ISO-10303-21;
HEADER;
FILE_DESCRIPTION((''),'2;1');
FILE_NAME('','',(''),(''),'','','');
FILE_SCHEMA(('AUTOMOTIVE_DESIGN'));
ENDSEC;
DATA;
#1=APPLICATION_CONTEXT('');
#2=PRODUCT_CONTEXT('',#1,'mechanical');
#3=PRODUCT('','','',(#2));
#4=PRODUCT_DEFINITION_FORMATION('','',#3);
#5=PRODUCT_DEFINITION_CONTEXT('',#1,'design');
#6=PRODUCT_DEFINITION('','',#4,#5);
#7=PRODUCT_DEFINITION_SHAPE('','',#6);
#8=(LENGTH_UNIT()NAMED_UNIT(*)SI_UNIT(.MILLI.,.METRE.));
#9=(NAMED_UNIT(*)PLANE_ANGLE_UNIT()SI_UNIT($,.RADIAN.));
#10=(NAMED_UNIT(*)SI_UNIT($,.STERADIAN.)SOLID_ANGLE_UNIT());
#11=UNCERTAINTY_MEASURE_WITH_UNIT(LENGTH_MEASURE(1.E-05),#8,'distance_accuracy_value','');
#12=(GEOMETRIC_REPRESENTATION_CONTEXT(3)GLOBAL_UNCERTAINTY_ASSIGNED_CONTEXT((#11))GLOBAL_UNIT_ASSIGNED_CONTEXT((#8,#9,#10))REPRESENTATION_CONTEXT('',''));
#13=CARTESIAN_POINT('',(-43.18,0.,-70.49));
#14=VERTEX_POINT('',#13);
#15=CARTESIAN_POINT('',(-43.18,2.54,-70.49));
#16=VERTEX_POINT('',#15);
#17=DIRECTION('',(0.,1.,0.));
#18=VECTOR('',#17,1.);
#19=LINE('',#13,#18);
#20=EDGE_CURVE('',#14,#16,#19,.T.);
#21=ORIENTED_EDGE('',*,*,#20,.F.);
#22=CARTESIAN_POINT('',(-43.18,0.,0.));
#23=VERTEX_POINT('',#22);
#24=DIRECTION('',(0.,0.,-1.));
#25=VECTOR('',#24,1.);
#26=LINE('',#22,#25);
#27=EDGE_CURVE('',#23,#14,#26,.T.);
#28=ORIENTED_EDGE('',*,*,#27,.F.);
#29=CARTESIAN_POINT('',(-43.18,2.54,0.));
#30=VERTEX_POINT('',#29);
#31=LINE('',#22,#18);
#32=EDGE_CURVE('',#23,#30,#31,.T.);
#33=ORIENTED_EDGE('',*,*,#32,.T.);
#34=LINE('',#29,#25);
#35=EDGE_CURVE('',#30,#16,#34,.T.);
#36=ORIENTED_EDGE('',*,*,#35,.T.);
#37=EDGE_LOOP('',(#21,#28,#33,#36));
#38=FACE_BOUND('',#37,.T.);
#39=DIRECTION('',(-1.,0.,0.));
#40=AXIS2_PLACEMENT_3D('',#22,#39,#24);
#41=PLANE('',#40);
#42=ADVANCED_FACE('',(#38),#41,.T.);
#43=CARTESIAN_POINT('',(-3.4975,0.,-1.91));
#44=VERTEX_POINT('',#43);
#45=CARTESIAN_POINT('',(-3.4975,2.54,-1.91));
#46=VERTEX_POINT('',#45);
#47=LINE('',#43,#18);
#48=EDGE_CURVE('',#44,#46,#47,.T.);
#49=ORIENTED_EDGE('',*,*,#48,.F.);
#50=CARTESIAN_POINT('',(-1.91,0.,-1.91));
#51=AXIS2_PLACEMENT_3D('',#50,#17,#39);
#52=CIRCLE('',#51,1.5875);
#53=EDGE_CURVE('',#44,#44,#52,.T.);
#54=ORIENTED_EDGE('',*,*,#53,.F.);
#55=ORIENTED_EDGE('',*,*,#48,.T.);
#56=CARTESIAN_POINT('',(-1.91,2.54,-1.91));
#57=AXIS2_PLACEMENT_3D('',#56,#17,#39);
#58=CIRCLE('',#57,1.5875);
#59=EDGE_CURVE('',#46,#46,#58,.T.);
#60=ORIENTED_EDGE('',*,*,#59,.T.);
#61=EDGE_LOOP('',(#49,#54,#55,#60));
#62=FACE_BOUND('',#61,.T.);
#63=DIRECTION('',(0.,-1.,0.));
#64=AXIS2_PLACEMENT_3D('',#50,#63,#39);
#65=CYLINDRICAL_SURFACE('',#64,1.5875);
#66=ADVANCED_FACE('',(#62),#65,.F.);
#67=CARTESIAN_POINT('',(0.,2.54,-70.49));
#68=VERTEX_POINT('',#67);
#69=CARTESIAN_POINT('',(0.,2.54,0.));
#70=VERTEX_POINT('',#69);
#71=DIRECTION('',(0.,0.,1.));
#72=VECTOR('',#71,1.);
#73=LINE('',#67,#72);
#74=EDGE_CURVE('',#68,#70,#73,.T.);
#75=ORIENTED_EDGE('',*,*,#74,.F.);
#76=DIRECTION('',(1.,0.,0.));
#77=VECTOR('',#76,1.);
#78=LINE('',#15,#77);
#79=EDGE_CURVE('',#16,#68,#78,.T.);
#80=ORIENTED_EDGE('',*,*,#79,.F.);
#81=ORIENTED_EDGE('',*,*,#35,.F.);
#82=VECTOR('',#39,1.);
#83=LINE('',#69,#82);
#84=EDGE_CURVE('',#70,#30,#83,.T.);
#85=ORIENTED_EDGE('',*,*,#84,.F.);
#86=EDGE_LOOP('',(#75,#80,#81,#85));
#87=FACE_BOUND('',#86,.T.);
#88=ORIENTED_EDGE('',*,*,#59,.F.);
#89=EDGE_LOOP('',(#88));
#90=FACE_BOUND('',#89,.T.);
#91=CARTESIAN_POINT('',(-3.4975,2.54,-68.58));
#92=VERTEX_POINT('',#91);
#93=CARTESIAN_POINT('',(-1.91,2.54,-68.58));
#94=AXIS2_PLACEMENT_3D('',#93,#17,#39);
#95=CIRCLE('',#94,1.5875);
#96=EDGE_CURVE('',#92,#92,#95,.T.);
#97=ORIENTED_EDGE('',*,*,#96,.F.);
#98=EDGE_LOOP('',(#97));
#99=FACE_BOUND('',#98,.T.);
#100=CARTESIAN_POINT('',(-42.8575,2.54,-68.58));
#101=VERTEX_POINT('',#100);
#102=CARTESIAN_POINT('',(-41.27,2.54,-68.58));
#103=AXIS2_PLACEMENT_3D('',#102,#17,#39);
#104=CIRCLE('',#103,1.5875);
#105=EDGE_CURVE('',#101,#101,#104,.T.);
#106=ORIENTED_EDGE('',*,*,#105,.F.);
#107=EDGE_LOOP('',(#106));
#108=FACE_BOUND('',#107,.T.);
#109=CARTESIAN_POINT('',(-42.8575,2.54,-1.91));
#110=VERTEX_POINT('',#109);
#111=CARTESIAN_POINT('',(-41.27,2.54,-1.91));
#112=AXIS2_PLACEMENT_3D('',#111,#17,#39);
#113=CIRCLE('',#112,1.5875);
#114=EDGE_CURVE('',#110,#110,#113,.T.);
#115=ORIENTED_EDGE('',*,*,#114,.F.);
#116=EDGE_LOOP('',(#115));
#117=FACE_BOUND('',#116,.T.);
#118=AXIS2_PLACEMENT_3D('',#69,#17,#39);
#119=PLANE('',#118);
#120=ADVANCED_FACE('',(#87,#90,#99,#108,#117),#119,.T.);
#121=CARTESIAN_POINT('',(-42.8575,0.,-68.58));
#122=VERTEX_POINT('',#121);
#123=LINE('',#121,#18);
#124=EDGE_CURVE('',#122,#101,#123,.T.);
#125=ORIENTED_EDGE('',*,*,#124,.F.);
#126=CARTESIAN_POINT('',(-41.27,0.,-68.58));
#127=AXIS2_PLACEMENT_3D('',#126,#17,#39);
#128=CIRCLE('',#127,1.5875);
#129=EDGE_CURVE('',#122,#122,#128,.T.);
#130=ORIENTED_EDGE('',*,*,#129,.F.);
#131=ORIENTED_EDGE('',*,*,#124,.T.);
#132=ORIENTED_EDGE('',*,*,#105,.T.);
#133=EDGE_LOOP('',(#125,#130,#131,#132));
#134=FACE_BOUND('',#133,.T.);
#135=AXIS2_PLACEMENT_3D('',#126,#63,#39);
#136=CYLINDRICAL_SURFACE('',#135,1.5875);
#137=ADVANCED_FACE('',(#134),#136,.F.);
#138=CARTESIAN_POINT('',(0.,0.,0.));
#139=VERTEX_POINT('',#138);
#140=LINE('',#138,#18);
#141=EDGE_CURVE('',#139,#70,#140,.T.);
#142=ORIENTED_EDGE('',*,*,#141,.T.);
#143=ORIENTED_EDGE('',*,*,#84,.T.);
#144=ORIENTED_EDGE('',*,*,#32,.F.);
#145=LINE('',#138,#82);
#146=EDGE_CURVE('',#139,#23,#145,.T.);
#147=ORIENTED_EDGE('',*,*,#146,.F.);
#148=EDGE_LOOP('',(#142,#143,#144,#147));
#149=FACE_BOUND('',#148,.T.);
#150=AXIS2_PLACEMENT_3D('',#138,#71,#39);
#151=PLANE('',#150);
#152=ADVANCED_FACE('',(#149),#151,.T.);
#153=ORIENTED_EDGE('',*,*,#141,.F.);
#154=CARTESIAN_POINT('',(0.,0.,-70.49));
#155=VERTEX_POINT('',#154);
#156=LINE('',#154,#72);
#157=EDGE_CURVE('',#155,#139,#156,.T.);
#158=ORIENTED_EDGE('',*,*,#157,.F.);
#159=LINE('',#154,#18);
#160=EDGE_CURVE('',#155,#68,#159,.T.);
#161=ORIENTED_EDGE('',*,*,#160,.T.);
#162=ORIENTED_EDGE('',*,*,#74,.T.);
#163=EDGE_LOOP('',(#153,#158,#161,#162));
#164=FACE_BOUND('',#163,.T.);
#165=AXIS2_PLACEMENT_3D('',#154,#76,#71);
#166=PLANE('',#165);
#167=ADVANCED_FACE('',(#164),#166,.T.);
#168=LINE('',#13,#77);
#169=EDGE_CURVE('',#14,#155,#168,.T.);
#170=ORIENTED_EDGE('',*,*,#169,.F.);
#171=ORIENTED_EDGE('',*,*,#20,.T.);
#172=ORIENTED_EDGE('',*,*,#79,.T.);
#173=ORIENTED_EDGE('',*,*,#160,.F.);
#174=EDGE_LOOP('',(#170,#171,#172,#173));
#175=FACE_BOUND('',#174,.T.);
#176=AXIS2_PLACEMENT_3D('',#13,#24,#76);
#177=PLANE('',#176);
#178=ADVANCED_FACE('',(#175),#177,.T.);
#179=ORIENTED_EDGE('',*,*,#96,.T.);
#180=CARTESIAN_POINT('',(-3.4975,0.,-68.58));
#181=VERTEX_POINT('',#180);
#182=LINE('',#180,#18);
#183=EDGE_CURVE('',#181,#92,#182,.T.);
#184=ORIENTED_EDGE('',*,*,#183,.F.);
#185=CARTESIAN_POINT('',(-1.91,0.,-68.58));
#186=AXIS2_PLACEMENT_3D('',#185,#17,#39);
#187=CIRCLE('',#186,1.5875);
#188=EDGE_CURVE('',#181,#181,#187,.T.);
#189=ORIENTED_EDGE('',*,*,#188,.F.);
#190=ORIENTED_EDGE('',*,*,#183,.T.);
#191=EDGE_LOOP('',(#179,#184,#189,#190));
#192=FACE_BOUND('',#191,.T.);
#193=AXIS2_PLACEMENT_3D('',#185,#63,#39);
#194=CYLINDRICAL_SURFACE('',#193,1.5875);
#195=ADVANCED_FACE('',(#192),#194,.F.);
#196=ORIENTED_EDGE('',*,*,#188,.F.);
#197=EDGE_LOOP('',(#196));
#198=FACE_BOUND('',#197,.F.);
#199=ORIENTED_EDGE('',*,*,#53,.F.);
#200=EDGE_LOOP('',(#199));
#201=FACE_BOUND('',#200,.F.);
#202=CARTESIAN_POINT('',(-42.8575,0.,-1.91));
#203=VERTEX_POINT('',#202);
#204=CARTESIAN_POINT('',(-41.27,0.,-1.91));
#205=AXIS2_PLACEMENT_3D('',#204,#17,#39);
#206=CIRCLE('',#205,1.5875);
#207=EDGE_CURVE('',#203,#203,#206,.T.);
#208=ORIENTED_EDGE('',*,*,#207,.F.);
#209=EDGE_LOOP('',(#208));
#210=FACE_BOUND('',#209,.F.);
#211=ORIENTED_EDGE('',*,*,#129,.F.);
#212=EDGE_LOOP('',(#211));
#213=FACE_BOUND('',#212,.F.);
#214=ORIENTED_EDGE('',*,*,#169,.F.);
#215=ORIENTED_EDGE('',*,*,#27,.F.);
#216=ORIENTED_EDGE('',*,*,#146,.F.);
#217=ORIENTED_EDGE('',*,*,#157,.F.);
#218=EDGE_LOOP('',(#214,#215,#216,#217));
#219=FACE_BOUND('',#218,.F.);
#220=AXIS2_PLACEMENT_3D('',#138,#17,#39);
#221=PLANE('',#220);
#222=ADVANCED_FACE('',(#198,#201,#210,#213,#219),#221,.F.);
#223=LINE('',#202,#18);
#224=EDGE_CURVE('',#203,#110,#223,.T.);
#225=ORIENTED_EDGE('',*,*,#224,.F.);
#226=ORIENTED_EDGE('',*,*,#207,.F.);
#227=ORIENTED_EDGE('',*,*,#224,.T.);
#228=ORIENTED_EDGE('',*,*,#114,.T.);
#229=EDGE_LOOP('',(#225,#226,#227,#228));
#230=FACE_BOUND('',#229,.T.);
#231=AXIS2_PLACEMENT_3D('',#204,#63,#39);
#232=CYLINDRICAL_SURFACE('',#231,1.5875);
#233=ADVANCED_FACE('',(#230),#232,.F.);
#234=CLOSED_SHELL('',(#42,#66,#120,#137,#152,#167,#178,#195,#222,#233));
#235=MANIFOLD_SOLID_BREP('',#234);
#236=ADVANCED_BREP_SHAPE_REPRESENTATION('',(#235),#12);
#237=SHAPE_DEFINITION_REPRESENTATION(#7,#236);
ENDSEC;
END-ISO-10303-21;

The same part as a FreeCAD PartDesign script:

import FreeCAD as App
import Part
import Sketcher

V = App.Vector
Q = App.Units.Quantity


def add_polygon(sketch, points):
    """Adds a closed chain of lines whose ends are joined by coincident constraints."""
    first, n = sketch.GeometryCount, len(points)
    for a, b in zip(points, points[1:] + points[:1]):
        sketch.addGeometry(Part.LineSegment(App.Vector(*a, 0), App.Vector(*b, 0)), False)
    for i in range(n):
        sketch.addConstraint(Sketcher.Constraint("Coincident", first + i, 2, first + (i + 1) % n, 1))

doc = App.newDocument("Part")
body = doc.addObject("PartDesign::Body", "Body")

sketch1 = body.newObject("Sketcher::SketchObject", "Sketch")
sketch1.AttachmentSupport = (doc.getObject("XZ_Plane"), [""])
sketch1.MapMode = "FlatFace"
add_polygon(sketch1, [(-43.18, 0), (0, 0), (0, -70.49), (-43.18, -70.49)])
sketch1.addGeometry(Part.Circle(V(-1.91, -68.58, 0), V(0, 0, 1), 1.5875), False)
sketch1.addGeometry(Part.Circle(V(-41.27, -68.58, 0), V(0, 0, 1), 1.5875), False)
sketch1.addGeometry(Part.Circle(V(-1.91, -1.91, 0), V(0, 0, 1), 1.5875), False)
sketch1.addGeometry(Part.Circle(V(-41.27, -1.91, 0), V(0, 0, 1), 1.5875), False)
sketch1.addConstraint([
    Sketcher.Constraint("Horizontal", 0),
    Sketcher.Constraint("Vertical", 1),
    Sketcher.Constraint("Horizontal", 2),
    Sketcher.Constraint("Vertical", 3),
    Sketcher.Constraint("Coincident", 0, 2, -1, 1),
    Sketcher.Constraint("Equal", 4, 5),
    Sketcher.Constraint("Equal", 5, 6),
    Sketcher.Constraint("Equal", 6, 7),
    Sketcher.Constraint("Horizontal", 4, 3, 5, 3),
    Sketcher.Constraint("Horizontal", 6, 3, 7, 3),
    Sketcher.Constraint("Vertical", 4, 3, 6, 3),
    Sketcher.Constraint("Vertical", 5, 3, 7, 3),
    Sketcher.Constraint("Diameter", 4, Q("0.125 in")),
    Sketcher.Constraint("DistanceX", 0, 1, 0, 2, Q("1.7 in")),
    Sketcher.Constraint("DistanceY", 1, 2, 1, 1, Q("2.7752 in")),
    Sketcher.Constraint("DistanceX", 4, 3, -1, 1, Q("0.0752 in")),
    Sketcher.Constraint("DistanceY", 4, 3, -1, 1, Q("2.7 in")),
    Sketcher.Constraint("DistanceY", 6, 3, -1, 1, Q("0.0752 in")),
    Sketcher.Constraint("DistanceX", 2, 2, 5, 3, Q("0.0752 in")),
])
pad1 = body.newObject("PartDesign::Pad", "Pad")
pad1.Profile = sketch1
pad1.Length = Q("0.1 in")
pad1.Reversed = True

doc.recompute()
